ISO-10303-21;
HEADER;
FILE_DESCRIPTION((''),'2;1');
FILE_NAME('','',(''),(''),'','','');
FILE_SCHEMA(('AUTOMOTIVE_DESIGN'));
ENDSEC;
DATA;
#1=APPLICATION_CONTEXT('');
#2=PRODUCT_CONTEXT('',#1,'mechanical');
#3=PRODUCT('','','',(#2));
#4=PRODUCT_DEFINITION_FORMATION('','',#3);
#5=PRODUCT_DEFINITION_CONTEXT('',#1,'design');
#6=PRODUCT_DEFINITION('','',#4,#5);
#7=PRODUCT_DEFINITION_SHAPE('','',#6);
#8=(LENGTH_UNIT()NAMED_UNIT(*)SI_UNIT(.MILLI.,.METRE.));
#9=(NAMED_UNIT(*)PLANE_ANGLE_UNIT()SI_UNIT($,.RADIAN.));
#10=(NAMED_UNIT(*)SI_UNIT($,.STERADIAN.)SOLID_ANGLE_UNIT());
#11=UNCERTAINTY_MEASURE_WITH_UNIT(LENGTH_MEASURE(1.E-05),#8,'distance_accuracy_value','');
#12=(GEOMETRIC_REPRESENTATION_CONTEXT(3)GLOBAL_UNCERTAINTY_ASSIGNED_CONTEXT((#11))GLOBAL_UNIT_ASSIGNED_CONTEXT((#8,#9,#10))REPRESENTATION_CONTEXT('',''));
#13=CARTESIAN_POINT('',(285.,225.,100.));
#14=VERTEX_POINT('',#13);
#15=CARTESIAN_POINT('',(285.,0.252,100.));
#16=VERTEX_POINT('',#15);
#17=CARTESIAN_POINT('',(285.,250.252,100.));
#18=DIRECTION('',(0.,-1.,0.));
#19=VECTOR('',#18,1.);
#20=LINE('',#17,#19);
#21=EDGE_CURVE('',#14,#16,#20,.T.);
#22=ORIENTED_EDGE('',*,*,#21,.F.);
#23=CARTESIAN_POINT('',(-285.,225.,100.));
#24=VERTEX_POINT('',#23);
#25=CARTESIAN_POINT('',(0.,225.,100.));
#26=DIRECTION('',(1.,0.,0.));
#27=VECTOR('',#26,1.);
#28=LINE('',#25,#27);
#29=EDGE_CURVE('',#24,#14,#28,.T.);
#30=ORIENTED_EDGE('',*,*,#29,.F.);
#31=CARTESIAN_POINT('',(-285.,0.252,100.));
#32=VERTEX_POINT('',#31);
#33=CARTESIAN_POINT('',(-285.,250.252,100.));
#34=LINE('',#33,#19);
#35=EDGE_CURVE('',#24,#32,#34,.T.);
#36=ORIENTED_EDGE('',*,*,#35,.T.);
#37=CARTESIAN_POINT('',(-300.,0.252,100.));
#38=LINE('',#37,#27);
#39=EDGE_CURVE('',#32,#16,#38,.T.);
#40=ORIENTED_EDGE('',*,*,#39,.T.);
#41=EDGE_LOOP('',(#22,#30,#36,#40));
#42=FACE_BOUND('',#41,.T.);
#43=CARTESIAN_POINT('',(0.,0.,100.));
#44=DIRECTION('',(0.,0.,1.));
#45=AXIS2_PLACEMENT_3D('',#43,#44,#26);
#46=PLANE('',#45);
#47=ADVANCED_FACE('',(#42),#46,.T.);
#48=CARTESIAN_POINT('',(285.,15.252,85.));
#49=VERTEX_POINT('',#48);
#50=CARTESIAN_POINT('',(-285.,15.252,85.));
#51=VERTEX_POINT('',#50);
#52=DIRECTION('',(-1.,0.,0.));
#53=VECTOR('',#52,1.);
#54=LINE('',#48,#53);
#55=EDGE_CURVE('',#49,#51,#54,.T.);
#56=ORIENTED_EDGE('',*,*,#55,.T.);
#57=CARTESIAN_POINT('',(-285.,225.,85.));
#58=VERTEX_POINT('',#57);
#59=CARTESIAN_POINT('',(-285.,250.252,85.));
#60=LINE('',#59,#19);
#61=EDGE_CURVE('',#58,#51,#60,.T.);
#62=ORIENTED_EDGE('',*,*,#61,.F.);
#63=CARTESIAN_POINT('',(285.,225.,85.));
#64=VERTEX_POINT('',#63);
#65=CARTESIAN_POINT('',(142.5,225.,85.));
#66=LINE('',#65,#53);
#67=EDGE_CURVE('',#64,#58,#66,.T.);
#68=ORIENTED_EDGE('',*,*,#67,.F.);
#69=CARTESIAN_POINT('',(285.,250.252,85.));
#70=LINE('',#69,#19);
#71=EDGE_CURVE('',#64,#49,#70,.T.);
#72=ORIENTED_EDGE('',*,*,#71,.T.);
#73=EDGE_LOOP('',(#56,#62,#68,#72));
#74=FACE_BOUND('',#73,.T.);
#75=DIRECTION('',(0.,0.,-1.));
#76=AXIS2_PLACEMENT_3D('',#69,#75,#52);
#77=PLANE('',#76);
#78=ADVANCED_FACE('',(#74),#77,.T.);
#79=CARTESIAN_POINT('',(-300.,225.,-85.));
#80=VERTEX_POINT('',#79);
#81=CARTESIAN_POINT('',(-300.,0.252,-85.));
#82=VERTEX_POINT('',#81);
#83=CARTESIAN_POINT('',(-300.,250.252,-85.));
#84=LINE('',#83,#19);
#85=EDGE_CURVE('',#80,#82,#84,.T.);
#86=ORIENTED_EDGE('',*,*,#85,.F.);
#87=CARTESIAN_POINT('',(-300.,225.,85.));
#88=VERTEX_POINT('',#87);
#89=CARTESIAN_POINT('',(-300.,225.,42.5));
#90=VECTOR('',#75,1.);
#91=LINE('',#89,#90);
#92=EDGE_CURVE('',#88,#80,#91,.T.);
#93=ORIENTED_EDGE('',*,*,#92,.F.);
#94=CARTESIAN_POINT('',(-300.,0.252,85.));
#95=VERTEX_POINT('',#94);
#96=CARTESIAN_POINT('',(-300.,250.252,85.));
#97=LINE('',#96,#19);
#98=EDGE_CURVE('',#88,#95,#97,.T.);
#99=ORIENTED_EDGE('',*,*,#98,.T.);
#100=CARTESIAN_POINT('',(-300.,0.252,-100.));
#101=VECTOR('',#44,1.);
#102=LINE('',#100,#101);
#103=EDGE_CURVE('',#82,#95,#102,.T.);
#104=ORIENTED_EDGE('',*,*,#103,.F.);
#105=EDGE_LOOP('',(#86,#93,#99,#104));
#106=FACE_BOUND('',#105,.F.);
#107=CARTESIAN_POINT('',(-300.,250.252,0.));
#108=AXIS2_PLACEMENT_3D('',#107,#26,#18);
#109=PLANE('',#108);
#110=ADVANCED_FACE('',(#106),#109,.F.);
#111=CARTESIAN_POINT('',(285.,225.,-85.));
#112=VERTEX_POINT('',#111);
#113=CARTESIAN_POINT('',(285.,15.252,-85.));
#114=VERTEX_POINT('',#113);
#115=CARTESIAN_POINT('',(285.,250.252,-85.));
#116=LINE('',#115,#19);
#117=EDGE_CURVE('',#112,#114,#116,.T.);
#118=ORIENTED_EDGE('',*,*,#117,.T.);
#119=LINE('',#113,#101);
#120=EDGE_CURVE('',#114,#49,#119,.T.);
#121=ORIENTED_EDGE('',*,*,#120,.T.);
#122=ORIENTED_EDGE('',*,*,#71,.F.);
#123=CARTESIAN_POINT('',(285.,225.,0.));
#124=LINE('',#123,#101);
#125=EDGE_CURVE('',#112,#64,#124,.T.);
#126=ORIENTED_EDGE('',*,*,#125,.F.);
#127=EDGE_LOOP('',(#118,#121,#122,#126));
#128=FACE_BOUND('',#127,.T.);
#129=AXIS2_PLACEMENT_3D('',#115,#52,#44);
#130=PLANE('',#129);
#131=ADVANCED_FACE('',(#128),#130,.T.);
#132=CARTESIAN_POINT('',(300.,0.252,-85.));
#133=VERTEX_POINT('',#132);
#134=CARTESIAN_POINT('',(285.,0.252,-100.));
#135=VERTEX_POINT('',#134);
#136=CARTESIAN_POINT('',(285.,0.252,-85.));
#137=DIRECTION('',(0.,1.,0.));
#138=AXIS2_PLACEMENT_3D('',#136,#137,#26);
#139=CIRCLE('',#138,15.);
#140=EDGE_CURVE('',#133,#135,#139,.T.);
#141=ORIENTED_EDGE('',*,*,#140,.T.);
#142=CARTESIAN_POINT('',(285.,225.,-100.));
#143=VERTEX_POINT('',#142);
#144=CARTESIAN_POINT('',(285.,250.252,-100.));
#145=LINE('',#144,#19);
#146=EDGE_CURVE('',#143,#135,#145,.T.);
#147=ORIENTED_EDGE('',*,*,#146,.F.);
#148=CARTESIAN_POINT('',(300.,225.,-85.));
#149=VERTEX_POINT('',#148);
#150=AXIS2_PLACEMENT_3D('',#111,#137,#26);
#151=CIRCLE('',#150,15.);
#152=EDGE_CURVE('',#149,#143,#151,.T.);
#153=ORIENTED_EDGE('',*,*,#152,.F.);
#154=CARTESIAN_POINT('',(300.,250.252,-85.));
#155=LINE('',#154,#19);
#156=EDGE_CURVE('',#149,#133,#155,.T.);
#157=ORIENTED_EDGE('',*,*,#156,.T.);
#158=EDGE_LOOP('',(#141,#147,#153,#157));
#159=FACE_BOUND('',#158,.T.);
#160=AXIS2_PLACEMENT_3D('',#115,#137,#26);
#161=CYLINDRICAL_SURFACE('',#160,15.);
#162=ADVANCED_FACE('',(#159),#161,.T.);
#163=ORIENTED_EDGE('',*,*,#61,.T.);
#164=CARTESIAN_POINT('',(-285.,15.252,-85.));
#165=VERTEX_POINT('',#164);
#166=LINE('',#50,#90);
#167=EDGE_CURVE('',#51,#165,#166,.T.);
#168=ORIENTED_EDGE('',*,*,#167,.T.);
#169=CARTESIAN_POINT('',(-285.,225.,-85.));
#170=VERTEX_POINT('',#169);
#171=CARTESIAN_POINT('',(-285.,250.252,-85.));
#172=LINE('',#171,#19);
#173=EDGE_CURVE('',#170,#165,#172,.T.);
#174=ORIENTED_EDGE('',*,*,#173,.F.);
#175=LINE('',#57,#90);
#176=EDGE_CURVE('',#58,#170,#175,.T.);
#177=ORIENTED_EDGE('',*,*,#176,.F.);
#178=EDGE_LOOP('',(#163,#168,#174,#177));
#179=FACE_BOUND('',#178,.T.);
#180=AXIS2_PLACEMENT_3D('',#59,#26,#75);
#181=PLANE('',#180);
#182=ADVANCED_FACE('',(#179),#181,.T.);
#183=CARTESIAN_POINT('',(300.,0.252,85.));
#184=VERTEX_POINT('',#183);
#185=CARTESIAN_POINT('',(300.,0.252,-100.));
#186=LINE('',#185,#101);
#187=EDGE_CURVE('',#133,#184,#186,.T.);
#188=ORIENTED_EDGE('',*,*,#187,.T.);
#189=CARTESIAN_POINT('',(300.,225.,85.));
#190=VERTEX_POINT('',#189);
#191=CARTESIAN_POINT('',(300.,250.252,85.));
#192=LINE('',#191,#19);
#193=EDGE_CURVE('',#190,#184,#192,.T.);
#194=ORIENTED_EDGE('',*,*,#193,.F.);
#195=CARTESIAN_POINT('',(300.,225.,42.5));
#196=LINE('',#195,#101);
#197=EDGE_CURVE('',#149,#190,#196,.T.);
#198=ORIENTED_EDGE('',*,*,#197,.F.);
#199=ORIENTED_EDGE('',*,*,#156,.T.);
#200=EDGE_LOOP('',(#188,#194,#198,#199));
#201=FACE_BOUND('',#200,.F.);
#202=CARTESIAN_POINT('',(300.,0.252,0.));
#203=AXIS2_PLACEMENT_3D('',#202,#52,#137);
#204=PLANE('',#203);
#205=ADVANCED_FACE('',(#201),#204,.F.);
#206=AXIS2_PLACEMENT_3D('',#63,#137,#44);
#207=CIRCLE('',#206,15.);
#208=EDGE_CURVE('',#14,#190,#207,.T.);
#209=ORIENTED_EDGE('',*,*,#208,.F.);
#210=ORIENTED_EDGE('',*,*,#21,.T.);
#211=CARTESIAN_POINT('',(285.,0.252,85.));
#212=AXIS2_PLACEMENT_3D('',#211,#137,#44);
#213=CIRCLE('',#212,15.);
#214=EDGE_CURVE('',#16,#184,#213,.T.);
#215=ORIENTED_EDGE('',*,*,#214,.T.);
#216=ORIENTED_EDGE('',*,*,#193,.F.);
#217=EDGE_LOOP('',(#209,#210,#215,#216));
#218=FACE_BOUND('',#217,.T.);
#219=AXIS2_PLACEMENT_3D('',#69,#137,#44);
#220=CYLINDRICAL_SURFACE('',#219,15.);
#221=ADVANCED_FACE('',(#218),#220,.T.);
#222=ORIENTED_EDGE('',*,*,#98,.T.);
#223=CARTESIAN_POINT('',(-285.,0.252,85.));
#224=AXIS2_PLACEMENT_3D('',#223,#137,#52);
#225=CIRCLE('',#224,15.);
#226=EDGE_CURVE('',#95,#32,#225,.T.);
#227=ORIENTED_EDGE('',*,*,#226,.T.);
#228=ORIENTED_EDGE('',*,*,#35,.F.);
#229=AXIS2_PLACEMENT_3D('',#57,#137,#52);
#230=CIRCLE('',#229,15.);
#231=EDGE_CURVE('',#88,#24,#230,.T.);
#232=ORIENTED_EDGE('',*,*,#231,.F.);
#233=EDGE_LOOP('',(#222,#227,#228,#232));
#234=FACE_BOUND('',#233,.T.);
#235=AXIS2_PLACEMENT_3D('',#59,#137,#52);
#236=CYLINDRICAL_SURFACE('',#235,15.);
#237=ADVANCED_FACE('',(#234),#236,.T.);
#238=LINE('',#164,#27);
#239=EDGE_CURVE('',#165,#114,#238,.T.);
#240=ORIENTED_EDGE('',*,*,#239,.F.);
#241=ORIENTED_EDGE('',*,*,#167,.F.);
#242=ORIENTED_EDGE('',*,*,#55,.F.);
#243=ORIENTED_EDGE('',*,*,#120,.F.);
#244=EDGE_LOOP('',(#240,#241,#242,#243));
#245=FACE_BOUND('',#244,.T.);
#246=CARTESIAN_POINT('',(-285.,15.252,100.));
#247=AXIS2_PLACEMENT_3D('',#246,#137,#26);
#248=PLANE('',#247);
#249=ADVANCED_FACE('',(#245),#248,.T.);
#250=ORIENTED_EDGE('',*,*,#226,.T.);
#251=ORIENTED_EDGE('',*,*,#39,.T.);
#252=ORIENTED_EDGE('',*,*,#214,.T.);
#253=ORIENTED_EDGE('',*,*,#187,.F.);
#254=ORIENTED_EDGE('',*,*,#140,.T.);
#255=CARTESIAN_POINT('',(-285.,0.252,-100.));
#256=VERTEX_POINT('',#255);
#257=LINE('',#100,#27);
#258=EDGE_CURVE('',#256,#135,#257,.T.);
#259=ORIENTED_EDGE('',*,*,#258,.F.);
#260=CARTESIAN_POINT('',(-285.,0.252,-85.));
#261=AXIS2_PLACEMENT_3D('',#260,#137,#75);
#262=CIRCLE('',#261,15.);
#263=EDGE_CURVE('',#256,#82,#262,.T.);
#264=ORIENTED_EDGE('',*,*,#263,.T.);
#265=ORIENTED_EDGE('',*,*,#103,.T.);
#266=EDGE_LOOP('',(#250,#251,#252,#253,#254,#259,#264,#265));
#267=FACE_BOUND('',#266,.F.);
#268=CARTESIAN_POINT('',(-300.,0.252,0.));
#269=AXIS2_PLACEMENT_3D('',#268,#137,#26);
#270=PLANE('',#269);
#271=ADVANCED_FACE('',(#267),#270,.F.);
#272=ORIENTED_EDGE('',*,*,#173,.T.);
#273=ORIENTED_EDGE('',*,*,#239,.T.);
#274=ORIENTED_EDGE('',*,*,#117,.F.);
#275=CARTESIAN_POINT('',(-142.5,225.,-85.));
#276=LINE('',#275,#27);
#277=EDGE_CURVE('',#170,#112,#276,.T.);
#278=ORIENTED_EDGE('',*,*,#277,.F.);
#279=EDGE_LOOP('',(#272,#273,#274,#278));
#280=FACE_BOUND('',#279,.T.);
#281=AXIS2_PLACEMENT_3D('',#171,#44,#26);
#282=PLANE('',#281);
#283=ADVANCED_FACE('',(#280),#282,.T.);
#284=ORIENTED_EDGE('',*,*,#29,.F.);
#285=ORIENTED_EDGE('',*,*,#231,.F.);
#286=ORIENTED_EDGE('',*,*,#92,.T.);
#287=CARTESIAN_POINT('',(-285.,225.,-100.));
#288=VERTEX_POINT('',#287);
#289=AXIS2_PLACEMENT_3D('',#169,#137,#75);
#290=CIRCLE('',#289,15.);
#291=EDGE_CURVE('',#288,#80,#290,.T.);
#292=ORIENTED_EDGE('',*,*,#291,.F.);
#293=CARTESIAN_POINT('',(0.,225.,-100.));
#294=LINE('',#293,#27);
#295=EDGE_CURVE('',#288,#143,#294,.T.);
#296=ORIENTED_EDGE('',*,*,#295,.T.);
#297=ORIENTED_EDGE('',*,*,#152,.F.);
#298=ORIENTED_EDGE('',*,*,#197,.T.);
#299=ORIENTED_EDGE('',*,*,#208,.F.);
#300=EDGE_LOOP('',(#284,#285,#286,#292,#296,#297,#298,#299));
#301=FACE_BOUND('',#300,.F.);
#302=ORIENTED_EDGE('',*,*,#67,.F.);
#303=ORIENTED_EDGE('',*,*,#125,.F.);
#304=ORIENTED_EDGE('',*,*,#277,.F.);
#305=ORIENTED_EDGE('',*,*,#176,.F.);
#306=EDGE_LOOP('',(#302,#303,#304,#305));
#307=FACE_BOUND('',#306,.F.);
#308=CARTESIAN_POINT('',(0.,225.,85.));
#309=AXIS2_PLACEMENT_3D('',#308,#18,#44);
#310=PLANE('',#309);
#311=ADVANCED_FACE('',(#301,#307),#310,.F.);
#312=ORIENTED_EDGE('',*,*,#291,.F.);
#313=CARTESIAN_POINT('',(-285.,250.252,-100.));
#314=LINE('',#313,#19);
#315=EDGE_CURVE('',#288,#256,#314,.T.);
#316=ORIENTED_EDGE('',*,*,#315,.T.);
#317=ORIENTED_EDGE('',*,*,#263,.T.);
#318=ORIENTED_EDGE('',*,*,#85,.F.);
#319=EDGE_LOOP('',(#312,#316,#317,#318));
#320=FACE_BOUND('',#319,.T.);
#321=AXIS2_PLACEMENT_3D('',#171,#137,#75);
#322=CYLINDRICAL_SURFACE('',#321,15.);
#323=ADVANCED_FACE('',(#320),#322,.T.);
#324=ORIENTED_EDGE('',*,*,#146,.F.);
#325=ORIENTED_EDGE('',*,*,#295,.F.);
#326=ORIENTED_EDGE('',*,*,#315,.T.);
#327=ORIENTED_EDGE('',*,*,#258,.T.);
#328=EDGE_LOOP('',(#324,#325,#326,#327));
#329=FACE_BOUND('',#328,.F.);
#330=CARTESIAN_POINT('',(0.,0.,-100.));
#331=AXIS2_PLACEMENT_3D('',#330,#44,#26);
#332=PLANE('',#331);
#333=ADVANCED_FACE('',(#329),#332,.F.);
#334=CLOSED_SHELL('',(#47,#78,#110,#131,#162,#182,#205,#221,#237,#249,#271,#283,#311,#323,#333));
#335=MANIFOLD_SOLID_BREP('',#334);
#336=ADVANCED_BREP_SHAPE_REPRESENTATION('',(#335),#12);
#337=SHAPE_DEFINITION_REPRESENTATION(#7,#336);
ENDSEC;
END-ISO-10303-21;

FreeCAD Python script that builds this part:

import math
import FreeCAD as App
import Part
import Sketcher
Q = App.Units.Quantity


def add_polygon(sketch, points):
    """Adds a closed chain of lines whose ends are joined by coincident constraints."""
    first, n = sketch.GeometryCount, len(points)
    for a, b in zip(points, points[1:] + points[:1]):
        sketch.addGeometry(Part.LineSegment(App.Vector(*a, 0), App.Vector(*b, 0)), False)
    for i in range(n):
        sketch.addConstraint(Sketcher.Constraint("Coincident", first + i, 2, first + (i + 1) % n, 1))

doc = App.newDocument("Part")
params = doc.addObject("Spreadsheet::Sheet", "Params")
for row, (alias, value) in enumerate([
    ("sketch1_width", "600 mm"),
    ("sketch1_height", "250 mm"),
    ("pad1_length", "200 mm"),
    ("sketch2_radius", "15 mm"),
    ("sketch3_width", "570 mm"),
    ("sketch3_height", "170 mm"),
    ("pocket2_length", "235 mm"),
], start=1):
    params.set(f"A{row}", alias)
    params.set(f"B{row}", "=" + value)
    params.setAlias(f"B{row}", alias)

body = doc.addObject("PartDesign::Body", "Body")

sketch1 = body.newObject("Sketcher::SketchObject", "Sketch")
sketch1.AttachmentSupport = (doc.getObject("XY_Plane"), [""])
sketch1.MapMode = "FlatFace"
add_polygon(sketch1, [(-300, 250), (-300, 0), (300, 0), (300, 250)])
sketch1.addConstraint(Sketcher.Constraint("Vertical", 0))
sketch1.addConstraint(Sketcher.Constraint("Horizontal", 1))
sketch1.addConstraint(Sketcher.Constraint("Vertical", 2))
sketch1.addConstraint(Sketcher.Constraint("Horizontal", 3))
sketch1.addConstraint(Sketcher.Constraint("DistanceX", 1, 1, 1, 2, Q("600 mm")))
sketch1.addConstraint(Sketcher.Constraint("DistanceY", 0, 2, 0, 1, Q("250 mm")))
sketch1.addConstraint(Sketcher.Constraint("DistanceX", 0, 2, -1, 1, Q("300 mm")))
sketch1.addConstraint(Sketcher.Constraint("DistanceY", -1, 1, 0, 2, Q("0.252 mm")))
sketch1.setExpression("Constraints[8]", "Params.sketch1_width")
sketch1.setExpression("Constraints[9]", "Params.sketch1_height")
pad1 = body.newObject("PartDesign::Pad", "Pad")
pad1.Profile = sketch1
pad1.setExpression("Length", "Params.pad1_length")
pad1.Midplane = True

sketch2 = body.newObject("Sketcher::SketchObject", "Sketch001")
sketch2.AttachmentSupport = (doc.getObject("XZ_Plane"), [""])
sketch2.MapMode = "FlatFace"
sketch2.AttachmentOffset = App.Placement(App.Vector(0, 0, -250.252), App.Rotation())
sketch2.addGeometry(Part.LineSegment(App.Vector(285, 100, 0), App.Vector(300, 100, 0)), False)
sketch2.addGeometry(Part.LineSegment(App.Vector(300, 100, 0), App.Vector(300, 85, 0)), False)
sketch2.addGeometry(Part.ArcOfCircle(Part.Circle(App.Vector(285, 85, 0), App.Vector(0, 0, 1), 15), math.radians(0), math.radians(90)), False)
sketch2.addGeometry(Part.LineSegment(App.Vector(-300, 100, 0), App.Vector(-285, 100, 0)), False)
sketch2.addGeometry(Part.ArcOfCircle(Part.Circle(App.Vector(-285, 85, 0), App.Vector(0, 0, 1), 15), math.radians(90), math.radians(180)), False)
sketch2.addGeometry(Part.LineSegment(App.Vector(-300, 85, 0), App.Vector(-300, 100, 0)), False)
sketch2.addGeometry(Part.ArcOfCircle(Part.Circle(App.Vector(285, -85, 0), App.Vector(0, 0, 1), 15), math.radians(-90), math.radians(0)), False)
sketch2.addGeometry(Part.LineSegment(App.Vector(300, -85, 0), App.Vector(300, -100, 0)), False)
sketch2.addGeometry(Part.LineSegment(App.Vector(300, -100, 0), App.Vector(285, -100, 0)), False)
sketch2.addGeometry(Part.LineSegment(App.Vector(-300, -100, 0), App.Vector(-300, -85, 0)), False)
sketch2.addGeometry(Part.ArcOfCircle(Part.Circle(App.Vector(-285, -85, 0), App.Vector(0, 0, 1), 15), math.radians(180), math.radians(270)), False)
sketch2.addGeometry(Part.LineSegment(App.Vector(-285, -100, 0), App.Vector(-300, -100, 0)), False)
sketch2.addConstraint(Sketcher.Constraint("Coincident", 0, 2, 1, 1))
sketch2.addConstraint(Sketcher.Constraint("Tangent", 1, 2, 2, 1))
sketch2.addConstraint(Sketcher.Constraint("Tangent", 2, 2, 0, 1))
sketch2.addConstraint(Sketcher.Constraint("Tangent", 3, 2, 4, 1))
sketch2.addConstraint(Sketcher.Constraint("Tangent", 4, 2, 5, 1))
sketch2.addConstraint(Sketcher.Constraint("Coincident", 5, 2, 3, 1))
sketch2.addConstraint(Sketcher.Constraint("Tangent", 6, 2, 7, 1))
sketch2.addConstraint(Sketcher.Constraint("Coincident", 7, 2, 8, 1))
sketch2.addConstraint(Sketcher.Constraint("Tangent", 8, 2, 6, 1))
sketch2.addConstraint(Sketcher.Constraint("Tangent", 9, 2, 10, 1))
sketch2.addConstraint(Sketcher.Constraint("Tangent", 10, 2, 11, 1))
sketch2.addConstraint(Sketcher.Constraint("Coincident", 11, 2, 9, 1))
sketch2.addConstraint(Sketcher.Constraint("Horizontal", 0))
sketch2.addConstraint(Sketcher.Constraint("Vertical", 1))
sketch2.addConstraint(Sketcher.Constraint("Horizontal", 3))
sketch2.addConstraint(Sketcher.Constraint("Vertical", 5))
sketch2.addConstraint(Sketcher.Constraint("Vertical", 7))
sketch2.addConstraint(Sketcher.Constraint("Horizontal", 8))
sketch2.addConstraint(Sketcher.Constraint("Vertical", 9))
sketch2.addConstraint(Sketcher.Constraint("Horizontal", 11))
sketch2.addConstraint(Sketcher.Constraint("Equal", 2, 4))
sketch2.addConstraint(Sketcher.Constraint("Equal", 4, 6))
sketch2.addConstraint(Sketcher.Constraint("Equal", 6, 10))
sketch2.addConstraint(Sketcher.Constraint("Symmetric", 4, 3, 6, 3, -1, 1))
sketch2.addConstraint(Sketcher.Constraint("Symmetric", 2, 3, 10, 3, -1, 1))
sketch2.addConstraint(Sketcher.Constraint("Symmetric", 2, 3, 4, 3, -2))
sketch2.addConstraint(Sketcher.Constraint("Radius", 2, Q("15 mm")))
sketch2.addConstraint(Sketcher.Constraint("DistanceX", -1, 1, 2, 3, Q("285 mm")))
sketch2.addConstraint(Sketcher.Constraint("DistanceY", -1, 1, 2, 3, Q("85 mm")))
sketch2.setExpression("Constraints[26]", "Params.sketch2_radius")
pocket1 = body.newObject("PartDesign::Pocket", "Pocket")
pocket1.Profile = sketch2
pocket1.Type = "ThroughAll"
pocket1.Reversed = True

sketch3 = body.newObject("Sketcher::SketchObject", "Sketch002")
sketch3.AttachmentSupport = (doc.getObject("XZ_Plane"), [""])
sketch3.MapMode = "FlatFace"
sketch3.AttachmentOffset = App.Placement(App.Vector(0, 0, -250.252), App.Rotation())
add_polygon(sketch3, [(285, -85), (-285, -85), (-285, 85), (285, 85)])
sketch3.addConstraint(Sketcher.Constraint("Horizontal", 0))
sketch3.addConstraint(Sketcher.Constraint("Vertical", 1))
sketch3.addConstraint(Sketcher.Constraint("Horizontal", 2))
sketch3.addConstraint(Sketcher.Constraint("Vertical", 3))
sketch3.addConstraint(Sketcher.Constraint("Symmetric", 0, 2, 2, 2, -1, 1))
sketch3.addConstraint(Sketcher.Constraint("DistanceX", 0, 2, 0, 1, Q("570 mm")))
sketch3.addConstraint(Sketcher.Constraint("DistanceY", 1, 1, 1, 2, Q("170 mm")))
sketch3.setExpression("Constraints[9]", "Params.sketch3_width")
sketch3.setExpression("Constraints[10]", "Params.sketch3_height")
pocket2 = body.newObject("PartDesign::Pocket", "Pocket001")
pocket2.Profile = sketch3
pocket2.setExpression("Length", "Params.pocket2_length")
pocket2.Reversed = True

sketch4 = body.newObject("Sketcher::SketchObject", "Sketch003")
sketch4.AttachmentSupport = (doc.getObject("YZ_Plane"), [""])
sketch4.MapMode = "FlatFace"
add_polygon(sketch4, [(225, 112), (225, -110), (266, -110), (266, 112)])
sketch4.addConstraint(Sketcher.Constraint("Vertical", 0))
sketch4.addConstraint(Sketcher.Constraint("Horizontal", 1))
sketch4.addConstraint(Sketcher.Constraint("Vertical", 2))
sketch4.addConstraint(Sketcher.Constraint("Horizontal", 3))
sketch4.addConstraint(Sketcher.Constraint("DistanceX", -1, 1, 0, 2, Q("225 mm")))
sketch4.addConstraint(Sketcher.Constraint("DistanceX", 1, 1, 1, 2, Q("40.8438 mm")))
sketch4.addConstraint(Sketcher.Constraint("DistanceY", 0, 2, 0, 1, Q("222.5706 mm")))
sketch4.addConstraint(Sketcher.Constraint("DistanceY", -1, 1, 2, 2, Q("112.429 mm")))
pocket3 = body.newObject("PartDesign::Pocket", "Pocket002")
pocket3.Profile = sketch4
pocket3.Type = "ThroughAll"
pocket3.Midplane = True

doc.recompute()
